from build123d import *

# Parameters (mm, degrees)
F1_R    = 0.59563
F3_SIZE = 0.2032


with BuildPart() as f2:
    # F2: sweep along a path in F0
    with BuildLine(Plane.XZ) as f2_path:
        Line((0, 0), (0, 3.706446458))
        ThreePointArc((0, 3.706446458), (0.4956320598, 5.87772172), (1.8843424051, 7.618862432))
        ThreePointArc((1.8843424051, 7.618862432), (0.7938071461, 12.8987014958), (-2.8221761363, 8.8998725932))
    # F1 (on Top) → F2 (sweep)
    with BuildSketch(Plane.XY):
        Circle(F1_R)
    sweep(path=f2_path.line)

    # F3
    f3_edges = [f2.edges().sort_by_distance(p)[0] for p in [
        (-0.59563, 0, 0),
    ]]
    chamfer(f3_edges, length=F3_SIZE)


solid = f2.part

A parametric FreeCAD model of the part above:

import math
import FreeCAD as App
import Part
import Sketcher

V = App.Vector
Q = App.Units.Quantity


def edges_at(feature, points):
    """Names of the edges that pass closest to the given points."""
    edges = feature.Shape.Edges
    near = lambda p: min(range(len(edges)), key=lambda i: edges[i].distToShape(Part.Vertex(*p))[0])
    return sorted({f"Edge{near(p) + 1}" for p in points})

doc = App.newDocument("Part")
body = doc.addObject("PartDesign::Body", "Body")

sketch1 = body.newObject("Sketcher::SketchObject", "Sketch")
sketch1.AttachmentSupport = (doc.getObject("XY_Plane"), [""])
sketch1.MapMode = "FlatFace"
sketch1.addGeometry(Part.Circle(V(0, 0, 0), V(0, 0, 1), 0.6), False)
sketch1.addConstraint(Sketcher.Constraint("Coincident", 0, 3, -1, 1))
sketch1.addConstraint(Sketcher.Constraint("Diameter", 0, Q("0.0469 in")))

sketch2 = body.newObject("Sketcher::SketchObject", "Sketch001")
sketch2.AttachmentSupport = (doc.getObject("XZ_Plane"), [""])
sketch2.MapMode = "FlatFace"
sketch2.addGeometry(Part.LineSegment(V(0, 0, 0), V(0, 3.7, 0)), False)
sketch2.addGeometry(Part.ArcOfCircle(Part.Circle(V(5, 3.7, 0), V(0, 0, 1), 5), math.radians(129), math.radians(180)), False)
sketch2.addGeometry(Part.ArcOfCircle(Part.Circle(V(0, 10, 0), V(0, 0, 1), 3), math.radians(-51), math.radians(201)), False)
sketch2.addConstraint(Sketcher.Constraint("Tangent", 0, 2, 1, 2))
sketch2.addConstraint(Sketcher.Constraint("Tangent", 1, 1, 2, 1))
sketch2.addConstraint(Sketcher.Constraint("Vertical", 0))
sketch2.addConstraint(Sketcher.Constraint("Coincident", 0, 1, -1, 1))
sketch2.addConstraint(Sketcher.Constraint("PointOnObject", 2, 3, -2))
sketch2.addConstraint(Sketcher.Constraint("Radius", 1, Q("0.197 in")))
sketch2.addConstraint(Sketcher.Constraint("Radius", 2, Q("0.119 in")))
sketch2.addConstraint(Sketcher.Constraint("DistanceY", -1, 1, 2, 3, Q("0.393 in")))
sketch2.addConstraint(Sketcher.Constraint("DistanceX", 2, 2, 1, 1, 4.706519))
doc.recompute()

additivepipe = body.newObject("PartDesign::AdditivePipe", "AdditivePipe")
additivepipe.Profile = sketch1
additivepipe.Spine = (sketch2, ["Edge1", "Edge2", "Edge3"])
doc.recompute()

chamfer = body.newObject("PartDesign::Chamfer", "Chamfer")
chamfer.Base = (additivepipe, edges_at(additivepipe, [(-0.596, 0, 0)]))
chamfer.Size = Q("0.008 in")

doc.recompute()
